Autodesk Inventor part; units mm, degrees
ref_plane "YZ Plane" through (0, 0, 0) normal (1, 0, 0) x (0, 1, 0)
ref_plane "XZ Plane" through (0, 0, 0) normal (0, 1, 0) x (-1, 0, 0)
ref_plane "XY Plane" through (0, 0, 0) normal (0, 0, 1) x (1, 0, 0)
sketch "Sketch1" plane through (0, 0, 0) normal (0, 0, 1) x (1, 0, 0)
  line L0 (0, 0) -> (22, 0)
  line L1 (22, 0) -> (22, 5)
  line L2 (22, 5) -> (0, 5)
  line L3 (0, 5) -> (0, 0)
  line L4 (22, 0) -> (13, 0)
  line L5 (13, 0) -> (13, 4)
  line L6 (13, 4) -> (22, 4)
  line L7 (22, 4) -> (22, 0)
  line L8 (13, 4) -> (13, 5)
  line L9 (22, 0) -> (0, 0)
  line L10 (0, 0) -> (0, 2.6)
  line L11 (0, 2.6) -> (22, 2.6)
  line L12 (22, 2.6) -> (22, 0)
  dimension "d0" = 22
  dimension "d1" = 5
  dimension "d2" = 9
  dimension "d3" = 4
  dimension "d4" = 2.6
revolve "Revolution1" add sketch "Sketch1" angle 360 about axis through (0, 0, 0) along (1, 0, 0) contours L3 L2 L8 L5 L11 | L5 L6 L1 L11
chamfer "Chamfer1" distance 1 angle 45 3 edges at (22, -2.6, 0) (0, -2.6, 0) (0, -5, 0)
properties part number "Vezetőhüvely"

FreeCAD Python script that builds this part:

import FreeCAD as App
import Part
import Sketcher
from FreeCAD import Vector
Q = App.Units.Quantity


def edges_at(feature, points):
    """Names of the edges that pass closest to the given points."""
    edges = feature.Shape.Edges
    near = lambda p: min(range(len(edges)), key=lambda i: edges[i].distToShape(Part.Vertex(*p))[0])
    return sorted({f"Edge{near(p) + 1}" for p in points})

doc = App.newDocument("Part")
body = doc.addObject("PartDesign::Body", "Body")

# Sketch on XY plane
sketch1 = doc.addObject("Sketcher::SketchObject", "Sketch")
body.addObject(sketch1)
sketch1.AttachmentSupport = (doc.XY_Plane, [""])
sketch1.MapMode = "FlatFace"
sketch1.addGeometry([
    Part.LineSegment(Vector(0, 5, 0), Vector(0, 2.6, 0)),  # 0
    Part.LineSegment(Vector(0, 2.6, 0), Vector(22, 2.6, 0)),  # 1
    Part.LineSegment(Vector(22, 2.6, 0), Vector(22, 4, 0)),  # 2
    Part.LineSegment(Vector(22, 4, 0), Vector(13, 4, 0)),  # 3
    Part.LineSegment(Vector(13, 4, 0), Vector(13, 5, 0)),  # 4
    Part.LineSegment(Vector(13, 5, 0), Vector(0, 5, 0)),  # 5
], False)
sketch1.addConstraint([
    Sketcher.Constraint("Coincident", 0, 2, 1, 1),
    Sketcher.Constraint("Coincident", 1, 2, 2, 1),
    Sketcher.Constraint("Coincident", 2, 2, 3, 1),
    Sketcher.Constraint("Coincident", 3, 2, 4, 1),
    Sketcher.Constraint("Coincident", 4, 2, 5, 1),
    Sketcher.Constraint("Coincident", 5, 2, 0, 1),
    Sketcher.Constraint("Vertical", 0),
    Sketcher.Constraint("Horizontal", 1),
    Sketcher.Constraint("Vertical", 2),
    Sketcher.Constraint("Horizontal", 3),
    Sketcher.Constraint("Vertical", 4),
    Sketcher.Constraint("Horizontal", 5),
    Sketcher.Constraint("PointOnObject", 0, 2, -2),
    Sketcher.Constraint("DistanceX", 1, 1, 1, 2, Q("22 mm")),
    Sketcher.Constraint("DistanceX", 3, 2, 3, 1, Q("9 mm")),
    Sketcher.Constraint("DistanceY", -1, 1, 2, 2, Q("4 mm")),
    Sketcher.Constraint("DistanceY", -1, 1, 4, 2, Q("5 mm")),
    Sketcher.Constraint("DistanceY", -1, 1, 0, 2, Q("2.6 mm")),
])
revolution = doc.addObject("PartDesign::Revolution", "Revolution")
body.addObject(revolution)
revolution.Profile = sketch1
revolution.ReferenceAxis = (sketch1, ["H_Axis"])
revolution.Angle = 360
doc.recompute()

chamfer = doc.addObject("PartDesign::Chamfer", "Chamfer")
body.addObject(chamfer)
chamfer.Base = (revolution, edges_at(revolution, [(22, -2.6, 0), (0, -2.6, 0), (0, -5, 0)]))
chamfer.Size = 1

doc.recompute()
